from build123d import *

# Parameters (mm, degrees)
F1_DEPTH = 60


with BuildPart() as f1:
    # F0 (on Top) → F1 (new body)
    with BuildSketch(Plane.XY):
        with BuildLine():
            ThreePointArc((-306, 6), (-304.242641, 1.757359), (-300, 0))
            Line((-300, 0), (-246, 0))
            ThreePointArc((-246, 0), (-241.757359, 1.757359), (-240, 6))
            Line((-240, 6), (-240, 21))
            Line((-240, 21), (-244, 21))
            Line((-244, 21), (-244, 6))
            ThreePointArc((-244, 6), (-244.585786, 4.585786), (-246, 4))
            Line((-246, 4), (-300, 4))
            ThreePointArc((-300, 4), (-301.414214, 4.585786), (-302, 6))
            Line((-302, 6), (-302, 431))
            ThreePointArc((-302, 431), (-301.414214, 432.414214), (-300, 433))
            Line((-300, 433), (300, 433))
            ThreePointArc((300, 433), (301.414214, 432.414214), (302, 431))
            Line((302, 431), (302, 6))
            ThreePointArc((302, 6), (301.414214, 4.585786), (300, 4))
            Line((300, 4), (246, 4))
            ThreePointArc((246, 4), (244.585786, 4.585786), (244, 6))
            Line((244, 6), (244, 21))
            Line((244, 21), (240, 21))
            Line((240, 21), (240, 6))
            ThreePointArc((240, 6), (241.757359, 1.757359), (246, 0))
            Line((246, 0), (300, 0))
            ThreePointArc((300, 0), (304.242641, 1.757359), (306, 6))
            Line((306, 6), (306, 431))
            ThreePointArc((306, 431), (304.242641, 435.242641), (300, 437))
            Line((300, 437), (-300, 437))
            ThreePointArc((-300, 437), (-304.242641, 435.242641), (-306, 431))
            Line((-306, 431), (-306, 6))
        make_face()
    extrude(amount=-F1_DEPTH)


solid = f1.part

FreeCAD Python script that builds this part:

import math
import FreeCAD as App
import Part
import Sketcher

doc = App.newDocument("Part")
body = doc.addObject("PartDesign::Body", "Body")

sketch1 = body.newObject("Sketcher::SketchObject", "Sketch")
sketch1.AttachmentSupport = (doc.getObject("XY_Plane"), [""])
sketch1.MapMode = "FlatFace"
sketch1.addGeometry([
    Part.ArcOfCircle(Part.Circle(App.Vector(-300.000001, 5.999999, 0), App.Vector(0, 0, 1), 5.999999), math.radians(179.99999), math.radians(270.00001)),
    Part.LineSegment(App.Vector(-300, 0, 0), App.Vector(-246, 0, 0)),
    Part.ArcOfCircle(Part.Circle(App.Vector(-245.999999, 5.999999, 0), App.Vector(0, 0, 1), 5.999999), math.radians(-90.00001), math.radians(0.00001)),
    Part.LineSegment(App.Vector(-240, 6, 0), App.Vector(-240, 21, 0)),
    Part.LineSegment(App.Vector(-240, 21, 0), App.Vector(-244, 21, 0)),
    Part.LineSegment(App.Vector(-244, 21, 0), App.Vector(-244, 6, 0)),
    Part.ArcOfCircle(Part.Circle(App.Vector(-245.999999, 5.999999, 0), App.Vector(0, 0, 1), 1.999999), math.radians(-90.000043), math.radians(0.000043)),
    Part.LineSegment(App.Vector(-246, 4, 0), App.Vector(-300, 4, 0)),
    Part.ArcOfCircle(Part.Circle(App.Vector(-300.000001, 5.999999, 0), App.Vector(0, 0, 1), 1.999999), math.radians(179.999957), math.radians(270.000043)),
    Part.LineSegment(App.Vector(-302, 6, 0), App.Vector(-302, 431, 0)),
    Part.ArcOfCircle(Part.Circle(App.Vector(-300.000001, 431.000001, 0), App.Vector(0, 0, 1), 1.999999), math.radians(89.999957), math.radians(180.000043)),
    Part.LineSegment(App.Vector(-300, 433, 0), App.Vector(300, 433, 0)),
    Part.ArcOfCircle(Part.Circle(App.Vector(300.000001, 431.000001, 0), App.Vector(0, 0, 1), 1.999999), math.radians(-0.000043), math.radians(90.000043)),
    Part.LineSegment(App.Vector(302, 431, 0), App.Vector(302, 6, 0)),
    Part.ArcOfCircle(Part.Circle(App.Vector(300.000001, 5.999999, 0), App.Vector(0, 0, 1), 1.999999), math.radians(-90.000043), math.radians(0.000043)),
    Part.LineSegment(App.Vector(300, 4, 0), App.Vector(246, 4, 0)),
    Part.ArcOfCircle(Part.Circle(App.Vector(245.999999, 5.999999, 0), App.Vector(0, 0, 1), 1.999999), math.radians(179.999957), math.radians(270.000043)),
    Part.LineSegment(App.Vector(244, 6, 0), App.Vector(244, 21, 0)),
    Part.LineSegment(App.Vector(244, 21, 0), App.Vector(240, 21, 0)),
    Part.LineSegment(App.Vector(240, 21, 0), App.Vector(240, 6, 0)),
    Part.ArcOfCircle(Part.Circle(App.Vector(245.999999, 5.999999, 0), App.Vector(0, 0, 1), 5.999999), math.radians(179.99999), math.radians(270.00001)),
    Part.LineSegment(App.Vector(246, 0, 0), App.Vector(300, 0, 0)),
    Part.ArcOfCircle(Part.Circle(App.Vector(300.000001, 5.999999, 0), App.Vector(0, 0, 1), 5.999999), math.radians(-90.00001), math.radians(0.00001)),
    Part.LineSegment(App.Vector(306, 6, 0), App.Vector(306, 431, 0)),
    Part.ArcOfCircle(Part.Circle(App.Vector(300.000001, 431.000001, 0), App.Vector(0, 0, 1), 5.999999), math.radians(-0.00001), math.radians(90.00001)),
    Part.LineSegment(App.Vector(300, 437, 0), App.Vector(-300, 437, 0)),
    Part.ArcOfCircle(Part.Circle(App.Vector(-300.000001, 431.000001, 0), App.Vector(0, 0, 1), 5.999999), math.radians(89.99999), math.radians(180.00001)),
    Part.LineSegment(App.Vector(-306, 431, 0), App.Vector(-306, 6, 0)),
], False)
sketch1.addConstraint([
    Sketcher.Constraint("Tangent", 0, 2, 1, 1),
    Sketcher.Constraint("Tangent", 1, 2, 2, 1),
    Sketcher.Constraint("Tangent", 2, 2, 3, 1),
    Sketcher.Constraint("Coincident", 3, 2, 4, 1),
    Sketcher.Constraint("Coincident", 4, 2, 5, 1),
    Sketcher.Constraint("Tangent", 5, 2, 6, 2),
    Sketcher.Constraint("Tangent", 6, 1, 7, 1),
    Sketcher.Constraint("Tangent", 7, 2, 8, 2),
    Sketcher.Constraint("Tangent", 8, 1, 9, 1),
    Sketcher.Constraint("Tangent", 9, 2, 10, 2),
    Sketcher.Constraint("Tangent", 10, 1, 11, 1),
    Sketcher.Constraint("Tangent", 11, 2, 12, 2),
    Sketcher.Constraint("Tangent", 12, 1, 13, 1),
    Sketcher.Constraint("Tangent", 13, 2, 14, 2),
    Sketcher.Constraint("Tangent", 14, 1, 15, 1),
    Sketcher.Constraint("Tangent", 15, 2, 16, 2),
    Sketcher.Constraint("Tangent", 16, 1, 17, 1),
    Sketcher.Constraint("Coincident", 17, 2, 18, 1),
    Sketcher.Constraint("Coincident", 18, 2, 19, 1),
    Sketcher.Constraint("Tangent", 19, 2, 20, 1),
    Sketcher.Constraint("Tangent", 20, 2, 21, 1),
    Sketcher.Constraint("Tangent", 21, 2, 22, 1),
    Sketcher.Constraint("Tangent", 22, 2, 23, 1),
    Sketcher.Constraint("Tangent", 23, 2, 24, 1),
    Sketcher.Constraint("Tangent", 24, 2, 25, 1),
    Sketcher.Constraint("Tangent", 25, 2, 26, 1),
    Sketcher.Constraint("Tangent", 26, 2, 27, 1),
    Sketcher.Constraint("Tangent", 27, 2, 0, 1),
    Sketcher.Constraint("Horizontal", 1),
    Sketcher.Constraint("Vertical", 3),
    Sketcher.Constraint("Horizontal", 4),
    Sketcher.Constraint("Vertical", 5),
    Sketcher.Constraint("Horizontal", 7),
    Sketcher.Constraint("Vertical", 9),
    Sketcher.Constraint("Horizontal", 11),
    Sketcher.Constraint("Vertical", 13),
    Sketcher.Constraint("Horizontal", 15),
    Sketcher.Constraint("Vertical", 17),
    Sketcher.Constraint("Horizontal", 18),
    Sketcher.Constraint("Vertical", 19),
    Sketcher.Constraint("Horizontal", 21),
    Sketcher.Constraint("Vertical", 23),
    Sketcher.Constraint("Horizontal", 25),
    Sketcher.Constraint("Vertical", 27),
    Sketcher.Constraint("Coincident", 6, 3, 2, 3),
    Sketcher.Constraint("Coincident", 8, 3, 0, 3),
    Sketcher.Constraint("Coincident", 20, 3, 16, 3),
    Sketcher.Constraint("Coincident", 22, 3, 14, 3),
    Sketcher.Constraint("Coincident", 24, 3, 12, 3),
    Sketcher.Constraint("Coincident", 26, 3, 10, 3),
    Sketcher.Constraint("Equal", 0, 2),
    Sketcher.Constraint("Equal", 8, 10),
    Sketcher.Constraint("Equal", 10, 12),
    Sketcher.Constraint("Equal", 12, 14),
    Sketcher.Constraint("Equal", 14, 16),
    Sketcher.Constraint("Symmetric", 1, 2, 20, 2, -1, 1),
    Sketcher.Constraint("Symmetric", 0, 3, 14, 3, -2),
    Sketcher.Constraint("Horizontal", 4, 2, 17, 2),
    Sketcher.Constraint("Radius", 0, 5.999999),
    Sketcher.Constraint("Radius", 6, 1.999999),
    Sketcher.Constraint("DistanceX", 1, 1, 1, 2, 54.0),
    Sketcher.Constraint("DistanceX", 11, 1, 11, 2, 600.0),
    Sketcher.Constraint("DistanceY", 3, 1, 3, 2, 15.0),
    Sketcher.Constraint("DistanceY", 9, 1, 9, 2, 425.0),
])
pad1 = body.newObject("PartDesign::Pad", "Pad")
pad1.Profile = sketch1
pad1.Length = 60
pad1.Reversed = True

doc.recompute()
